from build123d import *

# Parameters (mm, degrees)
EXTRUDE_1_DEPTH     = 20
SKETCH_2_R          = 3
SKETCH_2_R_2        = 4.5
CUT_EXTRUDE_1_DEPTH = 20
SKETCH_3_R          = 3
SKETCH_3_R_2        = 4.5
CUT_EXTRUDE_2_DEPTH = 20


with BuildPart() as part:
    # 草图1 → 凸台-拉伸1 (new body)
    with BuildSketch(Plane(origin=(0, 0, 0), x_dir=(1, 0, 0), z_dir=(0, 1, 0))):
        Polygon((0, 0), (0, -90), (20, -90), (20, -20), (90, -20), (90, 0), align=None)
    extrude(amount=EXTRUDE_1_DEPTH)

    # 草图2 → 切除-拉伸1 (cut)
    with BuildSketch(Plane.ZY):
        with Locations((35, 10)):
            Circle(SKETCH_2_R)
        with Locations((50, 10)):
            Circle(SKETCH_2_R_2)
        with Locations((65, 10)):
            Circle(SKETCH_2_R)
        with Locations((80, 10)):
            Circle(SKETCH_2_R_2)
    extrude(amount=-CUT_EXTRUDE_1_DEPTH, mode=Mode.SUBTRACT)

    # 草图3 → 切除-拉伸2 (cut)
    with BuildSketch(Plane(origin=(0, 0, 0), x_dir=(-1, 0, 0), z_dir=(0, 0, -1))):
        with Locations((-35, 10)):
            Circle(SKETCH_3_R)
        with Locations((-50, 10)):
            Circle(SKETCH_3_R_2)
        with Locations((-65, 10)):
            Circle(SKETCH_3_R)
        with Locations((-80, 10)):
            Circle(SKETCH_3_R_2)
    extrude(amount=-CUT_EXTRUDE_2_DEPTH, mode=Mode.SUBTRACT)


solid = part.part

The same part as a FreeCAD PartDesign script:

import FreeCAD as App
import Part
import Sketcher
from FreeCAD import Vector

doc = App.newDocument("Part")
params = doc.addObject("Spreadsheet::Sheet", "Params")
for row, (alias, value) in enumerate([
    ("sketch1_width", "20 mm"),
    ("sketch1_width2", "70 mm"),
    ("pad1_length", "20 mm"),
    ("sketch2_diameter", "6 mm"),
    ("sketch2_diameter2", "9 mm"),
    ("pocket1_length", "20 mm"),
    ("sketch3_diameter", "6 mm"),
    ("sketch3_diameter2", "9 mm"),
    ("pocket2_length", "20 mm"),
], start=1):
    params.set(f"A{row}", alias)
    params.set(f"B{row}", "=" + value)
    params.setAlias(f"B{row}", alias)

body = doc.addObject("PartDesign::Body", "Body")

sketch1 = body.newObject("Sketcher::SketchObject", "Sketch")
sketch1.AttachmentSupport = (doc.getObject("XZ_Plane"), [""])
sketch1.MapMode = "FlatFace"
sketch1.addGeometry([
    Part.LineSegment(Vector(0, 0, 0), Vector(0, 90, 0)),
    Part.LineSegment(Vector(0, 90, 0), Vector(20, 90, 0)),
    Part.LineSegment(Vector(20, 90, 0), Vector(20, 20, 0)),
    Part.LineSegment(Vector(20, 20, 0), Vector(90, 20, 0)),
    Part.LineSegment(Vector(90, 20, 0), Vector(90, 0, 0)),
    Part.LineSegment(Vector(90, 0, 0), Vector(0, 0, 0)),
], False)
sketch1.addConstraint([
    Sketcher.Constraint("Coincident", 0, 2, 1, 1),
    Sketcher.Constraint("Coincident", 1, 2, 2, 1),
    Sketcher.Constraint("Coincident", 2, 2, 3, 1),
    Sketcher.Constraint("Coincident", 3, 2, 4, 1),
    Sketcher.Constraint("Coincident", 4, 2, 5, 1),
    Sketcher.Constraint("Coincident", 5, 2, 0, 1),
    Sketcher.Constraint("Vertical", 0),
    Sketcher.Constraint("Horizontal", 1),
    Sketcher.Constraint("Vertical", 2),
    Sketcher.Constraint("Horizontal", 3),
    Sketcher.Constraint("Vertical", 4),
    Sketcher.Constraint("Horizontal", 5),
    Sketcher.Constraint("Coincident", 5, 2, -1, 1),
    Sketcher.Constraint("Equal", 5, 0),
    Sketcher.Constraint("Equal", 3, 2),
    Sketcher.Constraint("DistanceX", 1, 1, 1, 2, 20.0),
    Sketcher.Constraint("DistanceX", 3, 1, 3, 2, 70.0),
])
sketch1.setExpression("Constraints[15]", "Params.sketch1_width")
sketch1.setExpression("Constraints[16]", "Params.sketch1_width2")
pad1 = body.newObject("PartDesign::Pad", "Pad")
pad1.Profile = sketch1
pad1.setExpression("Length", "Params.pad1_length")
pad1.Reversed = True

sketch2 = body.newObject("Sketcher::SketchObject", "Sketch001")
sketch2.AttachmentSupport = (doc.getObject("YZ_Plane"), [""])
sketch2.MapMode = "FlatFace"
sketch2.addGeometry([
    Part.Circle(Vector(10, 35, 0), Vector(0, 0, 1), 3),
    Part.Circle(Vector(10, 50, 0), Vector(0, 0, 1), 4.5),
    Part.Circle(Vector(10, 65, 0), Vector(0, 0, 1), 3),
    Part.Circle(Vector(10, 80, 0), Vector(0, 0, 1), 4.5),
], False)
sketch2.addConstraint([
    Sketcher.Constraint("Equal", 0, 2),
    Sketcher.Constraint("Equal", 1, 3),
    Sketcher.Constraint("Vertical", 0, 3, 1, 3),
    Sketcher.Constraint("Vertical", 1, 3, 2, 3),
    Sketcher.Constraint("Vertical", 2, 3, 3, 3),
    Sketcher.Constraint("Diameter", 0, 6.0),
    Sketcher.Constraint("Diameter", 1, 9.0),
    Sketcher.Constraint("DistanceX", -1, 1, 0, 3, 10.0),
    Sketcher.Constraint("DistanceY", -1, 1, 0, 3, 35.0),
    Sketcher.Constraint("DistanceY", -1, 1, 1, 3, 50.0),
    Sketcher.Constraint("DistanceY", -1, 1, 2, 3, 65.0),
    Sketcher.Constraint("DistanceY", -1, 1, 3, 3, 80.0),
])
sketch2.setExpression("Constraints[5]", "Params.sketch2_diameter")
sketch2.setExpression("Constraints[6]", "Params.sketch2_diameter2")
pocket1 = body.newObject("PartDesign::Pocket", "Pocket")
pocket1.Profile = sketch2
pocket1.setExpression("Length", "Params.pocket1_length")
pocket1.Reversed = True

sketch3 = body.newObject("Sketcher::SketchObject", "Sketch002")
sketch3.AttachmentSupport = (doc.getObject("XY_Plane"), [""])
sketch3.MapMode = "FlatFace"
sketch3.addGeometry([
    Part.Circle(Vector(35, 10, 0), Vector(0, 0, 1), 3),
    Part.Circle(Vector(50, 10, 0), Vector(0, 0, 1), 4.5),
    Part.Circle(Vector(65, 10, 0), Vector(0, 0, 1), 3),
    Part.Circle(Vector(80, 10, 0), Vector(0, 0, 1), 4.5),
], False)
sketch3.addConstraint([
    Sketcher.Constraint("Equal", 0, 2),
    Sketcher.Constraint("Equal", 1, 3),
    Sketcher.Constraint("Horizontal", 0, 3, 1, 3),
    Sketcher.Constraint("Horizontal", 1, 3, 2, 3),
    Sketcher.Constraint("Horizontal", 2, 3, 3, 3),
    Sketcher.Constraint("Diameter", 0, 6.0),
    Sketcher.Constraint("Diameter", 1, 9.0),
    Sketcher.Constraint("DistanceX", -1, 1, 0, 3, 35.0),
    Sketcher.Constraint("DistanceY", -1, 1, 0, 3, 10.0),
    Sketcher.Constraint("DistanceX", -1, 1, 1, 3, 50.0),
    Sketcher.Constraint("DistanceX", -1, 1, 2, 3, 65.0),
    Sketcher.Constraint("DistanceX", -1, 1, 3, 3, 80.0),
])
sketch3.setExpression("Constraints[5]", "Params.sketch3_diameter")
sketch3.setExpression("Constraints[6]", "Params.sketch3_diameter2")
pocket2 = body.newObject("PartDesign::Pocket", "Pocket001")
pocket2.Profile = sketch3
pocket2.setExpression("Length", "Params.pocket2_length")
pocket2.Reversed = True

doc.recompute()
